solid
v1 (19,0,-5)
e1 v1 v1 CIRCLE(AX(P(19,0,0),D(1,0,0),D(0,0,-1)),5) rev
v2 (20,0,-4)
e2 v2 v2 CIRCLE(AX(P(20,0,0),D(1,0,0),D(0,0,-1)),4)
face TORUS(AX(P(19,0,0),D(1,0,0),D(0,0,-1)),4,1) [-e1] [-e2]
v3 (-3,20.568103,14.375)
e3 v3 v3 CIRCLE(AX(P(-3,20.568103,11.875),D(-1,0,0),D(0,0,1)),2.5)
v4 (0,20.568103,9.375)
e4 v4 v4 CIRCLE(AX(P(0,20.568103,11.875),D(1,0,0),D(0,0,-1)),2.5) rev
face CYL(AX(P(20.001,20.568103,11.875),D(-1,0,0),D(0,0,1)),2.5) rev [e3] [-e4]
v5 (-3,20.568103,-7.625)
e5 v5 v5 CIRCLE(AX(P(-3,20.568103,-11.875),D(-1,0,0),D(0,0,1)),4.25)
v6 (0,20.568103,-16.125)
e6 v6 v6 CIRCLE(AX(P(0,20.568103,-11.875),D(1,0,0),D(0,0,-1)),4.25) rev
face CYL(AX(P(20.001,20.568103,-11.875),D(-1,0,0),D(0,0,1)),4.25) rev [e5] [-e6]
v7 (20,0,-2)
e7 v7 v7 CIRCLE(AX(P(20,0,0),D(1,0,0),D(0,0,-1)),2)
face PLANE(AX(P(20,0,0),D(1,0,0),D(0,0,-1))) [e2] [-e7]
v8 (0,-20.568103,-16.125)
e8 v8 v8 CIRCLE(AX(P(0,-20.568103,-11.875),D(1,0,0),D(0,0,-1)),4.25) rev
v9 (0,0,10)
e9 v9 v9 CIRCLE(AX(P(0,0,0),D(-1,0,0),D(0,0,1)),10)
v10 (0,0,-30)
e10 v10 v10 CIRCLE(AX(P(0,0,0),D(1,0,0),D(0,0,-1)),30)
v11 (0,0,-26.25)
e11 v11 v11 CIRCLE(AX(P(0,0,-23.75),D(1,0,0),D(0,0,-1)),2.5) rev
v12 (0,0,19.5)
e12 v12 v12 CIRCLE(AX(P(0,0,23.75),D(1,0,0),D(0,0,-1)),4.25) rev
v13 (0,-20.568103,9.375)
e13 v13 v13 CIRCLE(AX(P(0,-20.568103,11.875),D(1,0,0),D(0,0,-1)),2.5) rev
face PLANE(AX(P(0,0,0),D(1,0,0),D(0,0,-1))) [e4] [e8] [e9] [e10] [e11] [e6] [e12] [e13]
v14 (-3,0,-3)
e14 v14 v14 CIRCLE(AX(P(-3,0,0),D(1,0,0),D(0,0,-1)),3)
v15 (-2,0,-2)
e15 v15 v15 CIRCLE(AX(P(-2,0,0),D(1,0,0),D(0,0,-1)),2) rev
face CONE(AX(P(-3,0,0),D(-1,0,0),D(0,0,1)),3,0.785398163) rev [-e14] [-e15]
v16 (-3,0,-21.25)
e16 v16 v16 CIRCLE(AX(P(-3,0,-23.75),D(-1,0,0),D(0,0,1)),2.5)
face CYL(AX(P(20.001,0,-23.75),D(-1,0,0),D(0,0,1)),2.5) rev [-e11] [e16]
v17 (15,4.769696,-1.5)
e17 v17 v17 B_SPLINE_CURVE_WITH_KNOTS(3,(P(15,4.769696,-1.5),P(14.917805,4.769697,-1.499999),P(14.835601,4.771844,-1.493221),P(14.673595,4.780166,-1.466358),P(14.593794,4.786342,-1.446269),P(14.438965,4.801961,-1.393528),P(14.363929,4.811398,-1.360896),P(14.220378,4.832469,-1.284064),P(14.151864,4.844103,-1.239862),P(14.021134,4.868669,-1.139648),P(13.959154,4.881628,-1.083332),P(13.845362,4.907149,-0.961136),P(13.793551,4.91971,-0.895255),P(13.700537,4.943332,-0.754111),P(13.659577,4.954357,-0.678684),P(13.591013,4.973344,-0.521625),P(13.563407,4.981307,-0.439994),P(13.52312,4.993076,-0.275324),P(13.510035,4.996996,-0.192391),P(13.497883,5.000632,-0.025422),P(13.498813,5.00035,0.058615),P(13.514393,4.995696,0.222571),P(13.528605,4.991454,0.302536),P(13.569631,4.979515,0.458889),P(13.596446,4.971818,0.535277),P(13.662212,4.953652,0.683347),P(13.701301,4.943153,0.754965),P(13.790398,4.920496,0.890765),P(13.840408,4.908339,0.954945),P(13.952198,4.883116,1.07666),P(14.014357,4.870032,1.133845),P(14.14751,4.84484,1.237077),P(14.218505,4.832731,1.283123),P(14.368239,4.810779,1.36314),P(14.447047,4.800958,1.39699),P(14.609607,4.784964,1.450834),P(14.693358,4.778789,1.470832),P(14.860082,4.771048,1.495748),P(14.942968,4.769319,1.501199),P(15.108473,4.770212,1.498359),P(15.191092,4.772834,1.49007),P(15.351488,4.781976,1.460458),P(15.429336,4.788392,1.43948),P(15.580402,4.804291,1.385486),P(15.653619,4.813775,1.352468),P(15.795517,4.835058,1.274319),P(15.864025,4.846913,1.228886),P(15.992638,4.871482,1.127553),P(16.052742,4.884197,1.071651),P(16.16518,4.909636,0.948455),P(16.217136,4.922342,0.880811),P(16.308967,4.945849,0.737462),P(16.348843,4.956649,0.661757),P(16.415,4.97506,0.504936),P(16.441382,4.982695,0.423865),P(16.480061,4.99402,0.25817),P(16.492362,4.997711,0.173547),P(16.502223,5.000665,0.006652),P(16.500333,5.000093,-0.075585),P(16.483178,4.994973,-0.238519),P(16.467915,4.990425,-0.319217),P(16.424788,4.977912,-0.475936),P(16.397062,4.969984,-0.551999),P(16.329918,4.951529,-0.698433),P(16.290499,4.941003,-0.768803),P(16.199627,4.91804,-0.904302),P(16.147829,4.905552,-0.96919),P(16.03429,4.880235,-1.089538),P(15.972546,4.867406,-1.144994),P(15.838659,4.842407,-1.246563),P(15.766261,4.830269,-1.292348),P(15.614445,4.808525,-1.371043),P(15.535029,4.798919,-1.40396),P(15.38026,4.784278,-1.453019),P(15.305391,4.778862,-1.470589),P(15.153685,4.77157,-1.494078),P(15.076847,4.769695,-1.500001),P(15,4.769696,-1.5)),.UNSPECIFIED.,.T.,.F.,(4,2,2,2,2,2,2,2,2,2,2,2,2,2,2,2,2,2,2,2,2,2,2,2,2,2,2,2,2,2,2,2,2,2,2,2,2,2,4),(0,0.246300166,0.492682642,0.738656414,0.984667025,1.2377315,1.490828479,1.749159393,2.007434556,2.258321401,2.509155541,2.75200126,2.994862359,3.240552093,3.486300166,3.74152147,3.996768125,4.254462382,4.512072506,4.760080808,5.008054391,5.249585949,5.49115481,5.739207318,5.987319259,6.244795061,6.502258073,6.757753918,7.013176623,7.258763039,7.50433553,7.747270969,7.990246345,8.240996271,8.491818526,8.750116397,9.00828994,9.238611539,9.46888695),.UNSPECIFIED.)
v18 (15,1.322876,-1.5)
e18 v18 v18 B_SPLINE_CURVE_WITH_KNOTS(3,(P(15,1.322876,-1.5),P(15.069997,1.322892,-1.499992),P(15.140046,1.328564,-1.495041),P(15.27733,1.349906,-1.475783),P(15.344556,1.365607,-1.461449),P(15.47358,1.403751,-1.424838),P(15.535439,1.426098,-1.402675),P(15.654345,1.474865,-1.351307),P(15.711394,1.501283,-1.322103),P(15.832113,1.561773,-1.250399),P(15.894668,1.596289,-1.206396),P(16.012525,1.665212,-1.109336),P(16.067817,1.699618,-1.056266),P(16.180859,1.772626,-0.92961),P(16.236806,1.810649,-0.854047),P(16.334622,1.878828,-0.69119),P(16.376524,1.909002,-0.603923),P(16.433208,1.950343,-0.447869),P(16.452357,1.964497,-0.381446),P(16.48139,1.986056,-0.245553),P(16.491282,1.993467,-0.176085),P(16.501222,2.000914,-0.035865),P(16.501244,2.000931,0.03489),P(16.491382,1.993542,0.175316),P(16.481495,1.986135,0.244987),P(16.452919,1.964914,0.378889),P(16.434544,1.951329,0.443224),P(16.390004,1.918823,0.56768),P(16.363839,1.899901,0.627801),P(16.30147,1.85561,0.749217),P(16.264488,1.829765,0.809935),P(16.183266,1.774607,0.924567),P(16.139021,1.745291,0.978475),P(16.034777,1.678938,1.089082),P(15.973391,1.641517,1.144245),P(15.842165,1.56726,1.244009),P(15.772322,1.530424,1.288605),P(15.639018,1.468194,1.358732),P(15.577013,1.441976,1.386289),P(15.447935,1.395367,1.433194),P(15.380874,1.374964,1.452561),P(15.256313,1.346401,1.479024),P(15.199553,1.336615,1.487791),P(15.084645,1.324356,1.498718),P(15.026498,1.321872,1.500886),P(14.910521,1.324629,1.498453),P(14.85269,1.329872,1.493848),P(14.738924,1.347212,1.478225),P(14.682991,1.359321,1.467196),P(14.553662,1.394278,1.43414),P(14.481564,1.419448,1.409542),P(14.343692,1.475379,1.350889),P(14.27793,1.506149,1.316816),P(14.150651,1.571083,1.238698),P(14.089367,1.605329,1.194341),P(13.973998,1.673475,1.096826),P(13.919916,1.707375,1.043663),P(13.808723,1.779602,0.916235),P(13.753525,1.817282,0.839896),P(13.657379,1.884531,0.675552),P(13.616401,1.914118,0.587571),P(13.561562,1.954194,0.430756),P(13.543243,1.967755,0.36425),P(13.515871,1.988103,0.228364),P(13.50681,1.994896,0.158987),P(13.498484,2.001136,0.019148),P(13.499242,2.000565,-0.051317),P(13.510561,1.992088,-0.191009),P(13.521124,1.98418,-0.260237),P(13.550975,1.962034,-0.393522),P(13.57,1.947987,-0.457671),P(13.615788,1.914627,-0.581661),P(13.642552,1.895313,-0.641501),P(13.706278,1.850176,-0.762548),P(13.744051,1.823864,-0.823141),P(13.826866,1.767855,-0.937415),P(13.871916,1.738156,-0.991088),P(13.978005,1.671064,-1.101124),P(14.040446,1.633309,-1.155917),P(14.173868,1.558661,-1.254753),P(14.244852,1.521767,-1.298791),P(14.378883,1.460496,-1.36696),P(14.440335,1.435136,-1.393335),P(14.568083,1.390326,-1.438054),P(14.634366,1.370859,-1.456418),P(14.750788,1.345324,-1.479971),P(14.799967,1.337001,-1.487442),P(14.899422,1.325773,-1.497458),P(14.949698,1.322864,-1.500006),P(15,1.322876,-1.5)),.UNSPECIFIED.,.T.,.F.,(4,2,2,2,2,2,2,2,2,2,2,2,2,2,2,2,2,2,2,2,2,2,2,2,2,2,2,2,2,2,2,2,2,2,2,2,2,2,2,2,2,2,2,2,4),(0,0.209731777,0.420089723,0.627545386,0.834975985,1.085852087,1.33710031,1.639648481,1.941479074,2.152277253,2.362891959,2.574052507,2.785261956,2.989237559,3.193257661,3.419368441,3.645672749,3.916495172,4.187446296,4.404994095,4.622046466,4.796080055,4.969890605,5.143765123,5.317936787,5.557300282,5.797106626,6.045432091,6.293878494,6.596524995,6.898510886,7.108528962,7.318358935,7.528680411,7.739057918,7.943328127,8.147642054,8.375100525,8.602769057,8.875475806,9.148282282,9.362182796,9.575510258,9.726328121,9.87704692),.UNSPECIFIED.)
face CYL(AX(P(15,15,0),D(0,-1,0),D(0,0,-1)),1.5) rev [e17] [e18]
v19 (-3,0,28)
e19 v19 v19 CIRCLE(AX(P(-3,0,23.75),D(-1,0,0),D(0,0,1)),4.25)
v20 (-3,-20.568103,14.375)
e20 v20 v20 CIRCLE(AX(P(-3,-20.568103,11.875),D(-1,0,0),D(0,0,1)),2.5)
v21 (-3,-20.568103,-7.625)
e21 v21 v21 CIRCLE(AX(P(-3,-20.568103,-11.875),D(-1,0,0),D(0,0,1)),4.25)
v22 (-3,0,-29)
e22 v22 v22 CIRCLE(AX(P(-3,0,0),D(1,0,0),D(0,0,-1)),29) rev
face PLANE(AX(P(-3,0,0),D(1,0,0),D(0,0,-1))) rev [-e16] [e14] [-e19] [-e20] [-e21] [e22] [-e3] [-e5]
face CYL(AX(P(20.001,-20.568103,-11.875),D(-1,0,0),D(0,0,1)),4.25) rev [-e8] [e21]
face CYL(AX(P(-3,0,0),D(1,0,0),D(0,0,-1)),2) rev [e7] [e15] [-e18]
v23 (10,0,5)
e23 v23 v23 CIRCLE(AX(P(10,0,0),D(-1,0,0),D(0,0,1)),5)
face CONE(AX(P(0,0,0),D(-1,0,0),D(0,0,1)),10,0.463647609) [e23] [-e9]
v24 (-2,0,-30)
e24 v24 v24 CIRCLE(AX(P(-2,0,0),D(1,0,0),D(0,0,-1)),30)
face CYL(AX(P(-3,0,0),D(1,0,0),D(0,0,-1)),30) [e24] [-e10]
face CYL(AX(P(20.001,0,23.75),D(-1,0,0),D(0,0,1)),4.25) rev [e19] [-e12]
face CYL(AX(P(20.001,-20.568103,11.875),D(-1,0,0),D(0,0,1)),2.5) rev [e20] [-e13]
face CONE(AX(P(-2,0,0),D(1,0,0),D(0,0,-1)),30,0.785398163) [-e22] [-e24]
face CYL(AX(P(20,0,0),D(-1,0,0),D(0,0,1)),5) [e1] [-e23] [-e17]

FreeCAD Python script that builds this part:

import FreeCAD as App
import Part
import Sketcher

V = App.Vector


def edges_at(feature, points):
    """Names of the edges that pass closest to the given points."""
    edges = feature.Shape.Edges
    near = lambda p: min(range(len(edges)), key=lambda i: edges[i].distToShape(Part.Vertex(*p))[0])
    return sorted({f"Edge{near(p) + 1}" for p in points})

doc = App.newDocument("Part")
body = doc.addObject("PartDesign::Body", "Body")

# Sketch on YZ plane
sketch1 = body.newObject("Sketcher::SketchObject", "Sketch")
sketch1.AttachmentSupport = (doc.getObject("YZ_Plane"), [""])
sketch1.MapMode = "FlatFace"
sketch1.addGeometry(Part.Circle(V(0, 0, 0), V(0, 0, 1), 30), False)
sketch1.addConstraint([
    Sketcher.Constraint("Coincident", 0, 3, -1, 1),
    Sketcher.Constraint("Diameter", 0, 60.0),
])
pad1 = body.newObject("PartDesign::Pad", "Pad")
pad1.Profile = sketch1
pad1.Length = 3
pad1.Reversed = True

# Sketch on YZ plane
sketch2 = body.newObject("Sketcher::SketchObject", "Sketch001")
sketch2.AttachmentSupport = (doc.getObject("YZ_Plane"), [""])
sketch2.MapMode = "FlatFace"
sketch2.addGeometry(Part.Circle(V(0, 0, 0), V(0, 0, 1), 10), False)
sketch2.addConstraint([
    Sketcher.Constraint("Coincident", 0, 3, -1, 1),
    Sketcher.Constraint("Diameter", 0, 20.0),
])
pad2 = body.newObject("PartDesign::Pad", "Pad001")
pad2.Profile = sketch2
pad2.Length = 10

# Sketch on YZ plane
sketch3 = body.newObject("Sketcher::SketchObject", "Sketch002")
sketch3.AttachmentSupport = (doc.getObject("YZ_Plane"), [""])
sketch3.MapMode = "FlatFace"
sketch3.AttachmentOffset = App.Placement(V(0, 0, 10), App.Rotation())
sketch3.addGeometry(Part.Circle(V(0, 0, 0), V(0, 0, 1), 5), False)
sketch3.addConstraint([
    Sketcher.Constraint("Coincident", 0, 3, -1, 1),
    Sketcher.Constraint("Diameter", 0, 10.0),
])
pad3 = body.newObject("PartDesign::Pad", "Pad002")
pad3.Profile = sketch3
pad3.Length = 10

# Sketch on XY plane
sketch4 = body.newObject("Sketcher::SketchObject", "Sketch003")
sketch4.AttachmentSupport = (doc.getObject("XY_Plane"), [""])
sketch4.MapMode = "FlatFace"
sketch4.addGeometry([
    Part.LineSegment(V(0, 10, 0), V(10, 5, 0)),
    Part.LineSegment(V(10, 5, 0), V(10, 10, 0)),
    Part.LineSegment(V(10, 10, 0), V(0, 10, 0)),
], False)
sketch4.addConstraint([
    Sketcher.Constraint("Coincident", 0, 2, 1, 1),
    Sketcher.Constraint("Coincident", 1, 2, 2, 1),
    Sketcher.Constraint("Coincident", 2, 2, 0, 1),
    Sketcher.Constraint("Vertical", 1),
    Sketcher.Constraint("Horizontal", 2),
    Sketcher.Constraint("PointOnObject", 2, 2, -2),
    Sketcher.Constraint("DistanceX", 2, 2, 2, 1, 10.0),
    Sketcher.Constraint("DistanceY", 1, 1, 1, 2, 5.0),
    Sketcher.Constraint("DistanceY", -1, 1, 0, 2, 5.0),
])
groove = body.newObject("PartDesign::Groove", "Groove")
groove.Profile = sketch4
groove.ReferenceAxis = (sketch4, ["H_Axis"])
groove.Angle = 360

# Sketch on YZ plane
sketch5 = body.newObject("Sketcher::SketchObject", "Sketch004")
sketch5.AttachmentSupport = (doc.getObject("YZ_Plane"), [""])
sketch5.MapMode = "FlatFace"
sketch5.AttachmentOffset = App.Placement(V(0, 0, 20), App.Rotation())
sketch5.addGeometry(Part.Circle(V(0, 0, 0), V(0, 0, 1), 2), False)
sketch5.addConstraint([
    Sketcher.Constraint("Coincident", 0, 3, -1, 1),
    Sketcher.Constraint("Diameter", 0, 4.0),
])
pocket1 = body.newObject("PartDesign::Pocket", "Pocket")
pocket1.Profile = sketch5
pocket1.Type = "ThroughAll"

# Sketch on YZ plane
sketch6 = body.newObject("Sketcher::SketchObject", "Sketch005")
sketch6.AttachmentSupport = (doc.getObject("YZ_Plane"), [""])
sketch6.MapMode = "FlatFace"
sketch6.AttachmentOffset = App.Placement(V(0, 0, -3), App.Rotation())
sketch6.addGeometry(Part.Circle(V(20.6, -11.9, 0), V(0, 0, 1), 4.2), False)
sketch6.addConstraint([
    Sketcher.Constraint("Diameter", 0, 8.5),
    Sketcher.Constraint("DistanceY", 0, 3, -1, 1, 11.875),
    Sketcher.Constraint("DistanceX", -1, 1, 0, 3, 20.568103),
])
pocket2 = body.newObject("PartDesign::Pocket", "Pocket001")
pocket2.Profile = sketch6
pocket2.Type = "UpToFirst"
pocket2.Reversed = True

# Sketch on YZ plane
sketch7 = body.newObject("Sketcher::SketchObject", "Sketch006")
sketch7.AttachmentSupport = (doc.getObject("YZ_Plane"), [""])
sketch7.MapMode = "FlatFace"
sketch7.AttachmentOffset = App.Placement(V(0, 0, -3), App.Rotation())
sketch7.addGeometry(Part.Circle(V(0, 23.8, 0), V(0, 0, 1), 4.2), False)
sketch7.addConstraint([
    Sketcher.Constraint("PointOnObject", 0, 3, -2),
    Sketcher.Constraint("Diameter", 0, 8.5),
    Sketcher.Constraint("DistanceY", -1, 1, 0, 3, 23.75),
])
pocket3 = body.newObject("PartDesign::Pocket", "Pocket002")
pocket3.Profile = sketch7
pocket3.Type = "UpToFirst"
pocket3.Reversed = True

# Sketch on YZ plane
sketch8 = body.newObject("Sketcher::SketchObject", "Sketch007")
sketch8.AttachmentSupport = (doc.getObject("YZ_Plane"), [""])
sketch8.MapMode = "FlatFace"
sketch8.AttachmentOffset = App.Placement(V(0, 0, -3), App.Rotation())
sketch8.addGeometry(Part.Circle(V(-20.6, -11.9, 0), V(0, 0, 1), 4.2), False)
sketch8.addConstraint([
    Sketcher.Constraint("Diameter", 0, 8.5),
    Sketcher.Constraint("DistanceY", 0, 3, -1, 1, 11.875),
    Sketcher.Constraint("DistanceX", 0, 3, -1, 1, 20.568103),
])
pocket4 = body.newObject("PartDesign::Pocket", "Pocket003")
pocket4.Profile = sketch8
pocket4.Type = "UpToFirst"
pocket4.Reversed = True

# Sketch on YZ plane
sketch9 = body.newObject("Sketcher::SketchObject", "Sketch008")
sketch9.AttachmentSupport = (doc.getObject("YZ_Plane"), [""])
sketch9.MapMode = "FlatFace"
sketch9.AttachmentOffset = App.Placement(V(0, 0, -3), App.Rotation())
sketch9.addGeometry(Part.Circle(V(20.6, 11.9, 0), V(0, 0, 1), 2.5), False)
sketch9.addConstraint([
    Sketcher.Constraint("Diameter", 0, 5.0),
    Sketcher.Constraint("DistanceY", -1, 1, 0, 3, 11.875),
    Sketcher.Constraint("DistanceX", -1, 1, 0, 3, 20.568103),
])
pocket5 = body.newObject("PartDesign::Pocket", "Pocket004")
pocket5.Profile = sketch9
pocket5.Type = "UpToFirst"
pocket5.Reversed = True

# Sketch on YZ plane
sketch10 = body.newObject("Sketcher::SketchObject", "Sketch009")
sketch10.AttachmentSupport = (doc.getObject("YZ_Plane"), [""])
sketch10.MapMode = "FlatFace"
sketch10.AttachmentOffset = App.Placement(V(0, 0, -3), App.Rotation())
sketch10.addGeometry(Part.Circle(V(-20.6, 11.9, 0), V(0, 0, 1), 2.5), False)
sketch10.addConstraint([
    Sketcher.Constraint("Diameter", 0, 5.0),
    Sketcher.Constraint("DistanceY", -1, 1, 0, 3, 11.875),
    Sketcher.Constraint("DistanceX", 0, 3, -1, 1, 20.568103),
])
pocket6 = body.newObject("PartDesign::Pocket", "Pocket005")
pocket6.Profile = sketch10
pocket6.Type = "UpToFirst"
pocket6.Reversed = True

# Sketch on YZ plane
sketch11 = body.newObject("Sketcher::SketchObject", "Sketch010")
sketch11.AttachmentSupport = (doc.getObject("YZ_Plane"), [""])
sketch11.MapMode = "FlatFace"
sketch11.AttachmentOffset = App.Placement(V(0, 0, -3), App.Rotation())
sketch11.addGeometry(Part.Circle(V(0, -23.8, 0), V(0, 0, 1), 2.5), False)
sketch11.addConstraint([
    Sketcher.Constraint("PointOnObject", 0, 3, -2),
    Sketcher.Constraint("Diameter", 0, 5.0),
    Sketcher.Constraint("DistanceY", 0, 3, -1, 1, 23.75),
])
pocket7 = body.newObject("PartDesign::Pocket", "Pocket006")
pocket7.Profile = sketch11
pocket7.Type = "UpToFirst"
pocket7.Reversed = True

# Sketch on XZ plane
sketch12 = body.newObject("Sketcher::SketchObject", "Sketch011")
sketch12.AttachmentSupport = (doc.getObject("XZ_Plane"), [""])
sketch12.MapMode = "FlatFace"
sketch12.addGeometry(Part.Circle(V(15, 0, 0), V(0, 0, 1), 1.5), False)
sketch12.addConstraint([
    Sketcher.Constraint("PointOnObject", 0, 3, -1),
    Sketcher.Constraint("Diameter", 0, 3.0),
    Sketcher.Constraint("DistanceX", -1, 1, 0, 3, 15.0),
])
pocket8 = body.newObject("PartDesign::Pocket", "Pocket007")
pocket8.Profile = sketch12
pocket8.Length = 15
doc.recompute()

fillet = body.newObject("PartDesign::Fillet", "Fillet")
fillet.Base = (pocket8, edges_at(pocket8, [(20, 0, 5)]))
fillet.Radius = 1
doc.recompute()

chamfer = body.newObject("PartDesign::Chamfer", "Chamfer")
chamfer.Base = (fillet, edges_at(fillet, [(-3, 0, 30)]))
chamfer.Size = 1
doc.recompute()

chamfer2 = body.newObject("PartDesign::Chamfer", "Chamfer001")
chamfer2.Base = (chamfer, edges_at(chamfer, [(-3, 0, 2)]))
chamfer2.Size = 1

doc.recompute()
